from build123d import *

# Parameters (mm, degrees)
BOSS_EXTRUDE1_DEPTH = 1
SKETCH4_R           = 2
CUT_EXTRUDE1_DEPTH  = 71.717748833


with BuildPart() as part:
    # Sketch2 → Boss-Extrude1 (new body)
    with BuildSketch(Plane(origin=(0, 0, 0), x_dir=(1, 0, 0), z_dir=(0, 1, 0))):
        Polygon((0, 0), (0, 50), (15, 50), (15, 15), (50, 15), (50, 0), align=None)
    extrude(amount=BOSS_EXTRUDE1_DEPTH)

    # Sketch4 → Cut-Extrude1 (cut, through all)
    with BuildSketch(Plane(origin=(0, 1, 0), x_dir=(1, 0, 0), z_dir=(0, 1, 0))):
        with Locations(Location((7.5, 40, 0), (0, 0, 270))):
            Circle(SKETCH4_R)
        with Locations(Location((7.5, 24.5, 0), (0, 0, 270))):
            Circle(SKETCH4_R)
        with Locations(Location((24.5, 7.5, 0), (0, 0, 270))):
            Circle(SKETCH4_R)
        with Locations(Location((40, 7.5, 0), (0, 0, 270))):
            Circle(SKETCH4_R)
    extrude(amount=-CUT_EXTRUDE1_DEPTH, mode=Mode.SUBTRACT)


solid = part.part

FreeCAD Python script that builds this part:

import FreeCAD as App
import Part
import Sketcher
from FreeCAD import Vector

doc = App.newDocument("Part")
params = doc.addObject("Spreadsheet::Sheet", "Params")
for row, (alias, value) in enumerate([
    ("sketch1_width", "50 mm"),
    ("sketch1_width2", "35 mm"),
    ("pad1_length", "1 mm"),
    ("sketch2_diameter", "4 mm"),
], start=1):
    params.set(f"A{row}", alias)
    params.set(f"B{row}", "=" + value)
    params.setAlias(f"B{row}", alias)

body = doc.addObject("PartDesign::Body", "Body")

# Sketch on XZ plane
sketch1 = body.newObject("Sketcher::SketchObject", "Sketch")
sketch1.AttachmentSupport = (doc.getObject("XZ_Plane"), [""])
sketch1.MapMode = "FlatFace"
sketch1.addGeometry([
    Part.LineSegment(Vector(0, -50, 0), Vector(0, 0, 0)),  # 0
    Part.LineSegment(Vector(0, 0, 0), Vector(50, 0, 0)),  # 1
    Part.LineSegment(Vector(50, 0, 0), Vector(50, -15, 0)),  # 2
    Part.LineSegment(Vector(50, -15, 0), Vector(15, -15, 0)),  # 3
    Part.LineSegment(Vector(15, -15, 0), Vector(15, -50, 0)),  # 4
    Part.LineSegment(Vector(15, -50, 0), Vector(0, -50, 0)),  # 5
], False)
sketch1.addConstraint([
    Sketcher.Constraint("Coincident", 0, 2, 1, 1),
    Sketcher.Constraint("Coincident", 1, 2, 2, 1),
    Sketcher.Constraint("Coincident", 2, 2, 3, 1),
    Sketcher.Constraint("Coincident", 3, 2, 4, 1),
    Sketcher.Constraint("Coincident", 4, 2, 5, 1),
    Sketcher.Constraint("Coincident", 5, 2, 0, 1),
    Sketcher.Constraint("Vertical", 0),
    Sketcher.Constraint("Horizontal", 1),
    Sketcher.Constraint("Vertical", 2),
    Sketcher.Constraint("Horizontal", 3),
    Sketcher.Constraint("Vertical", 4),
    Sketcher.Constraint("Horizontal", 5),
    Sketcher.Constraint("Coincident", 0, 2, -1, 1),
    Sketcher.Constraint("Equal", 1, 0),
    Sketcher.Constraint("Equal", 5, 2),
    Sketcher.Constraint("DistanceX", 1, 1, 1, 2, 50.0),
    Sketcher.Constraint("DistanceX", 3, 2, 3, 1, 35.0),
])
sketch1.setExpression("Constraints[15]", "Params.sketch1_width")
sketch1.setExpression("Constraints[16]", "Params.sketch1_width2")
pad1 = body.newObject("PartDesign::Pad", "Pad")
pad1.Profile = sketch1
pad1.setExpression("Length", "Params.pad1_length")
pad1.Reversed = True

# Sketch on XZ plane
sketch2 = body.newObject("Sketcher::SketchObject", "Sketch001")
sketch2.AttachmentSupport = (doc.getObject("XZ_Plane"), [""])
sketch2.MapMode = "FlatFace"
sketch2.AttachmentOffset = App.Placement(Vector(0, 0, -1), App.Rotation())
sketch2.addGeometry([
    Part.Circle(Vector(7.5, -40, 0), Vector(0, 0, 1), 2),
    Part.Circle(Vector(7.5, -24.5, 0), Vector(0, 0, 1), 2),
    Part.Circle(Vector(24.5, -7.5, 0), Vector(0, 0, 1), 2),
    Part.Circle(Vector(40, -7.5, 0), Vector(0, 0, 1), 2),
], False)
sketch2.addConstraint([
    Sketcher.Constraint("Equal", 0, 1),
    Sketcher.Constraint("Equal", 1, 2),
    Sketcher.Constraint("Equal", 2, 3),
    Sketcher.Constraint("Horizontal", 2, 3, 3, 3),
    Sketcher.Constraint("Vertical", 0, 3, 1, 3),
    Sketcher.Constraint("Diameter", 0, 4.0),
    Sketcher.Constraint("DistanceY", 0, 3, -1, 1, 40.0),
    Sketcher.Constraint("DistanceX", -1, 1, 3, 3, 40.0),
    Sketcher.Constraint("DistanceX", 1, 3, 2, 3, 17.0),
    Sketcher.Constraint("DistanceY", 1, 3, 2, 3, 17.0),
    Sketcher.Constraint("DistanceX", -1, 1, 0, 3, 7.5),
    Sketcher.Constraint("DistanceY", 1, 3, -1, 1, 24.5),
])
sketch2.setExpression("Constraints[5]", "Params.sketch2_diameter")
pocket1 = body.newObject("PartDesign::Pocket", "Pocket")
pocket1.Profile = sketch2
pocket1.Type = "ThroughAll"
pocket1.Reversed = True

doc.recompute()
